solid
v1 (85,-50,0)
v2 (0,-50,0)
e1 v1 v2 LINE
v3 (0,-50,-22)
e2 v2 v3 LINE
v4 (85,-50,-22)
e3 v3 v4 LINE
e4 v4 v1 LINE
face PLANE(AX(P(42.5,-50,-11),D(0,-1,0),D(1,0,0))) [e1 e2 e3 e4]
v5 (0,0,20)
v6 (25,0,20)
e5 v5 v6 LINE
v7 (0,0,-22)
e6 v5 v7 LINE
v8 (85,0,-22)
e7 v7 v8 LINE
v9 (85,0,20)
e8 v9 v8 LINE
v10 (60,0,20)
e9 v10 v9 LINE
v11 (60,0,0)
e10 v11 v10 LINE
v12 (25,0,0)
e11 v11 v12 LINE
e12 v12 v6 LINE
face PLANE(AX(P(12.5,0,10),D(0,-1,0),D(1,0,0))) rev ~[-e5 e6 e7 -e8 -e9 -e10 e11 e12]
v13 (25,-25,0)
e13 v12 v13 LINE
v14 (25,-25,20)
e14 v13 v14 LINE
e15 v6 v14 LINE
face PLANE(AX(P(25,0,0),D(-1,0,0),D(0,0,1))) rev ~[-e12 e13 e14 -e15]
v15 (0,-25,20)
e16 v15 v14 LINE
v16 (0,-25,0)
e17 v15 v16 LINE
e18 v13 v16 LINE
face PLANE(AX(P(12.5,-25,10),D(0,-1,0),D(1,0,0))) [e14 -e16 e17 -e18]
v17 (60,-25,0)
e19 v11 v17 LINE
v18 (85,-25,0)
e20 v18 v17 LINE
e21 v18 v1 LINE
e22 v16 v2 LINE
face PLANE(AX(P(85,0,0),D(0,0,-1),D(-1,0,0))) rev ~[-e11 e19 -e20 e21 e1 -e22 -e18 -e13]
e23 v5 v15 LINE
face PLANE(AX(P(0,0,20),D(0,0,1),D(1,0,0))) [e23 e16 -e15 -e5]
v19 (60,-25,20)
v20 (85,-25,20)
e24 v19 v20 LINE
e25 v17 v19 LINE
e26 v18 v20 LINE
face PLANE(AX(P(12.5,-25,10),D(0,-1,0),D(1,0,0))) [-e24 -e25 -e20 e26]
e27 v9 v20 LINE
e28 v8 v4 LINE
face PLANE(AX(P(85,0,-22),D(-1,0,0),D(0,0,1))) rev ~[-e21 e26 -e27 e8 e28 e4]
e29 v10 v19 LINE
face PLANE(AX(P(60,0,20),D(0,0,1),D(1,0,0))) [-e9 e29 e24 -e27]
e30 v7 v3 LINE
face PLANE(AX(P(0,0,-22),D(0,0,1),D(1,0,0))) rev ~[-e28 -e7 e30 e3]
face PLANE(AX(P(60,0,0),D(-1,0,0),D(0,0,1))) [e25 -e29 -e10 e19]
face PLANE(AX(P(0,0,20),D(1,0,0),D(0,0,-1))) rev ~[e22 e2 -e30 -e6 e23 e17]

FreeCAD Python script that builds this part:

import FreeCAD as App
import Part
import Sketcher


def add_polygon(sketch, points):
    """Adds a closed chain of lines whose ends are joined by coincident constraints."""
    first, n = sketch.GeometryCount, len(points)
    for a, b in zip(points, points[1:] + points[:1]):
        sketch.addGeometry(Part.LineSegment(App.Vector(*a, 0), App.Vector(*b, 0)), False)
    for i in range(n):
        sketch.addConstraint(Sketcher.Constraint("Coincident", first + i, 2, first + (i + 1) % n, 1))

doc = App.newDocument("Part")
params = doc.addObject("Spreadsheet::Sheet", "Params")
for row, (alias, value) in enumerate([
    ("sketch1_width", "85 mm"),
    ("sketch1_height", "22 mm"),
    ("pad1_length", "50 mm"),
    ("sketch2_width", "85 mm"),
    ("sketch2_width2", "25 mm"),
    ("sketch2_height", "42 mm"),
    ("sketch2_height2", "20 mm"),
    ("pad2_length", "25 mm"),
], start=1):
    params.set(f"A{row}", alias)
    params.set(f"B{row}", "=" + value)
    params.setAlias(f"B{row}", alias)

body = doc.addObject("PartDesign::Body", "Body")

sketch1 = body.newObject("Sketcher::SketchObject", "Sketch")
sketch1.AttachmentSupport = (doc.getObject("XZ_Plane"), [""])
sketch1.MapMode = "FlatFace"
add_polygon(sketch1, [(0, 0), (0, -22), (85, -22), (85, 0)])
sketch1.addConstraint(Sketcher.Constraint("Vertical", 0))
sketch1.addConstraint(Sketcher.Constraint("Horizontal", 1))
sketch1.addConstraint(Sketcher.Constraint("Vertical", 2))
sketch1.addConstraint(Sketcher.Constraint("Horizontal", 3))
sketch1.addConstraint(Sketcher.Constraint("Coincident", 3, 2, -1, 1))
sketch1.addConstraint(Sketcher.Constraint("DistanceX", 1, 1, 1, 2, 85.0))
sketch1.addConstraint(Sketcher.Constraint("DistanceY", 0, 2, 0, 1, 22.0))
sketch1.setExpression("Constraints[9]", "Params.sketch1_width")
sketch1.setExpression("Constraints[10]", "Params.sketch1_height")
pad1 = body.newObject("PartDesign::Pad", "Pad")
pad1.Profile = sketch1
pad1.setExpression("Length", "Params.pad1_length")

sketch2 = body.newObject("Sketcher::SketchObject", "Sketch001")
sketch2.AttachmentSupport = (doc.getObject("XZ_Plane"), [""])
sketch2.MapMode = "FlatFace"
add_polygon(sketch2, [(0, 20), (0, -22), (85, -22), (85, 20), (60, 20), (60, 0), (25, 0), (25, 20)])
sketch2.addConstraint(Sketcher.Constraint("Vertical", 0))
sketch2.addConstraint(Sketcher.Constraint("Horizontal", 1))
sketch2.addConstraint(Sketcher.Constraint("Vertical", 2))
sketch2.addConstraint(Sketcher.Constraint("Horizontal", 3))
sketch2.addConstraint(Sketcher.Constraint("Vertical", 4))
sketch2.addConstraint(Sketcher.Constraint("Horizontal", 5))
sketch2.addConstraint(Sketcher.Constraint("Vertical", 6))
sketch2.addConstraint(Sketcher.Constraint("Horizontal", 7))
sketch2.addConstraint(Sketcher.Constraint("PointOnObject", 0, 2, -2))
sketch2.addConstraint(Sketcher.Constraint("PointOnObject", 4, 2, -1))
sketch2.addConstraint(Sketcher.Constraint("Horizontal", 3, 2, 6, 2))
sketch2.addConstraint(Sketcher.Constraint("Equal", 3, 7))
sketch2.addConstraint(Sketcher.Constraint("DistanceX", 1, 1, 1, 2, 85.0))
sketch2.addConstraint(Sketcher.Constraint("DistanceX", 3, 2, 3, 1, 25.0))
sketch2.addConstraint(Sketcher.Constraint("DistanceY", 0, 2, 0, 1, 42.0))
sketch2.addConstraint(Sketcher.Constraint("DistanceY", 4, 2, 4, 1, 20.0))
sketch2.setExpression("Constraints[20]", "Params.sketch2_width")
sketch2.setExpression("Constraints[21]", "Params.sketch2_width2")
sketch2.setExpression("Constraints[22]", "Params.sketch2_height")
sketch2.setExpression("Constraints[23]", "Params.sketch2_height2")
pad2 = body.newObject("PartDesign::Pad", "Pad001")
pad2.Profile = sketch2
pad2.setExpression("Length", "Params.pad2_length")

doc.recompute()
